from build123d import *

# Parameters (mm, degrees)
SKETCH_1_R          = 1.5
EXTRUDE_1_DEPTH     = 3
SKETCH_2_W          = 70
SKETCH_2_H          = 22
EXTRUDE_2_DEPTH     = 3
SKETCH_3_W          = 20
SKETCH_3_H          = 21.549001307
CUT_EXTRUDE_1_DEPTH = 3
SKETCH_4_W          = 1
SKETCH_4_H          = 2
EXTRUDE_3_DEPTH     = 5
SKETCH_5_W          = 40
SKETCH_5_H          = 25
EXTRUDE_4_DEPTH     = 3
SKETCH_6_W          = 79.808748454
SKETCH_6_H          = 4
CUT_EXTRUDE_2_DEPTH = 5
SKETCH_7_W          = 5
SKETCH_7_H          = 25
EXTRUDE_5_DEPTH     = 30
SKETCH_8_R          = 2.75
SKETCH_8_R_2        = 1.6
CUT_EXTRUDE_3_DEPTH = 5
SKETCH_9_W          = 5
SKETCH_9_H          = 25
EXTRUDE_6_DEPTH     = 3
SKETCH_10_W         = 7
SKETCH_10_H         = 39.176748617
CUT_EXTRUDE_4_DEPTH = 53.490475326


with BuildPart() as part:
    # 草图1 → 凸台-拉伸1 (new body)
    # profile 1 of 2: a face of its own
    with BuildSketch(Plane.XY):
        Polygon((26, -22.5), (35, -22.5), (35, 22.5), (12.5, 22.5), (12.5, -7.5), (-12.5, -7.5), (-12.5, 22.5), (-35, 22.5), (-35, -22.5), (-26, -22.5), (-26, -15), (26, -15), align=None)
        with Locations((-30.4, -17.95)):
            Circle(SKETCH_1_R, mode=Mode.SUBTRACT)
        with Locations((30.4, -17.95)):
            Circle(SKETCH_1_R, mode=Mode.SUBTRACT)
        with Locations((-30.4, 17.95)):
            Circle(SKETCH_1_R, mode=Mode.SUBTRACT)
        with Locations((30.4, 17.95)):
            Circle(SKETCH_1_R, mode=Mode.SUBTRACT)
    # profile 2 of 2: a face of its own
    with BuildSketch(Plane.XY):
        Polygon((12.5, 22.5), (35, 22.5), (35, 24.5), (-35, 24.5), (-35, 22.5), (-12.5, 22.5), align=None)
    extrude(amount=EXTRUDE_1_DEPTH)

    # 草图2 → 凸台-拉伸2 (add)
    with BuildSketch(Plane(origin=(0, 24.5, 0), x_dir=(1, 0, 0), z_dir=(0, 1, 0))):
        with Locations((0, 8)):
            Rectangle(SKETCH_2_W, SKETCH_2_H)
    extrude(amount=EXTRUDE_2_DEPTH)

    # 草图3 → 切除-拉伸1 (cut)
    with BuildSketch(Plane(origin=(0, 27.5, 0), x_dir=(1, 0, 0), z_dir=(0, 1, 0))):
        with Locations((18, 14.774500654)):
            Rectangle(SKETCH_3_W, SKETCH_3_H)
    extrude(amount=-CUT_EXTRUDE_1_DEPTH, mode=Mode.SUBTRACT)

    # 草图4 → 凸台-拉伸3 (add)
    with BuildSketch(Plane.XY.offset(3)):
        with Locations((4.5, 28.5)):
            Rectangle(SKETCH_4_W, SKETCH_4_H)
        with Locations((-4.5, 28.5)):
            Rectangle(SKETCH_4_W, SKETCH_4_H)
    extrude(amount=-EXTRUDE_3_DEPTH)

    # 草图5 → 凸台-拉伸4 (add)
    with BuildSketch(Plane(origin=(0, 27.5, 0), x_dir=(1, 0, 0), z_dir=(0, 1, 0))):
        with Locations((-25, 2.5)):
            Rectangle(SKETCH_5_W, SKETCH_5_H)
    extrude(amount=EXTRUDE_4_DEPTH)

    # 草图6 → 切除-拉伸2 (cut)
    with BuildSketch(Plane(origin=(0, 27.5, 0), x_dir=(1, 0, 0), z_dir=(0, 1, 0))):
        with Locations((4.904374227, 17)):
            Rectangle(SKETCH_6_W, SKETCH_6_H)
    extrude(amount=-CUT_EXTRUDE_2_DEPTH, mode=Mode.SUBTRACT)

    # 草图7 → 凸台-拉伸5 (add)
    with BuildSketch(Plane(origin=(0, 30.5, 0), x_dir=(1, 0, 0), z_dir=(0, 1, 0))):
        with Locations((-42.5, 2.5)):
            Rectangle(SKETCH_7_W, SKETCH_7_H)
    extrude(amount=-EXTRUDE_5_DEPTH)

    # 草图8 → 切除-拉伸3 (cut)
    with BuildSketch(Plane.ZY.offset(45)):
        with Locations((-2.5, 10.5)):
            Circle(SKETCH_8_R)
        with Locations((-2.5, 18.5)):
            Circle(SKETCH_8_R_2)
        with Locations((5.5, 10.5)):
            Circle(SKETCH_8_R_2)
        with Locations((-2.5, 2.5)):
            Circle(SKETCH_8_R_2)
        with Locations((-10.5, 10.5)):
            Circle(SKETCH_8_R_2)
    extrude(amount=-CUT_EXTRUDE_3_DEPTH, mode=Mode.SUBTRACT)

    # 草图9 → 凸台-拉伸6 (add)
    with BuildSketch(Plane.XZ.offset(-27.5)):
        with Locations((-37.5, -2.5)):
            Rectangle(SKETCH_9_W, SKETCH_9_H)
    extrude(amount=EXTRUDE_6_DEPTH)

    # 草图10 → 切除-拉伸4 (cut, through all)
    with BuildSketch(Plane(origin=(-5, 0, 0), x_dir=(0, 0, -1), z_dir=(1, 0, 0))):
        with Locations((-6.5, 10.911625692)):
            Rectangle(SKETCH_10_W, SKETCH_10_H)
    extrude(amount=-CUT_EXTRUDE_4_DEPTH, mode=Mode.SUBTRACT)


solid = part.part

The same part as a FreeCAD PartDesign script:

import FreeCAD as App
import Part
import Sketcher

V = App.Vector

doc = App.newDocument("Part")
body = doc.addObject("PartDesign::Body", "Body")

# Sketch on XY plane
sketch1 = doc.addObject("Sketcher::SketchObject", "Sketch")
body.addObject(sketch1)
sketch1.AttachmentSupport = (doc.XY_Plane, [""])
sketch1.MapMode = "FlatFace"
sketch1.addGeometry([
    Part.LineSegment(V(26, -22.5, 0), V(35, -22.5, 0)),  # 0
    Part.LineSegment(V(35, -22.5, 0), V(35, 24.5, 0)),  # 1
    Part.LineSegment(V(35, 24.5, 0), V(-35, 24.5, 0)),  # 2
    Part.LineSegment(V(-35, 24.5, 0), V(-35, -22.5, 0)),  # 3
    Part.LineSegment(V(-35, -22.5, 0), V(-26, -22.5, 0)),  # 4
    Part.LineSegment(V(-26, -22.5, 0), V(-26, -15, 0)),  # 5
    Part.LineSegment(V(-26, -15, 0), V(26, -15, 0)),  # 6
    Part.LineSegment(V(26, -15, 0), V(26, -22.5, 0)),  # 7
    Part.LineSegment(V(12.5, 22.5, 0), V(12.5, -7.5, 0)),  # 8
    Part.LineSegment(V(12.5, -7.5, 0), V(-12.5, -7.5, 0)),  # 9
    Part.LineSegment(V(-12.5, -7.5, 0), V(-12.5, 22.5, 0)),  # 10
    Part.LineSegment(V(-12.5, 22.5, 0), V(12.5, 22.5, 0)),  # 11
    Part.Circle(V(-30.4, -17.9, 0), V(0, 0, 1), 1.5),  # 12
    Part.Circle(V(30.4, -17.9, 0), V(0, 0, 1), 1.5),  # 13
    Part.Circle(V(-30.4, 17.9, 0), V(0, 0, 1), 1.5),  # 14
    Part.Circle(V(30.4, 17.9, 0), V(0, 0, 1), 1.5),  # 15
], False)
sketch1.addConstraint([
    Sketcher.Constraint("Coincident", 0, 2, 1, 1),
    Sketcher.Constraint("Coincident", 1, 2, 2, 1),
    Sketcher.Constraint("Coincident", 2, 2, 3, 1),
    Sketcher.Constraint("Coincident", 3, 2, 4, 1),
    Sketcher.Constraint("Coincident", 4, 2, 5, 1),
    Sketcher.Constraint("Coincident", 5, 2, 6, 1),
    Sketcher.Constraint("Coincident", 6, 2, 7, 1),
    Sketcher.Constraint("Coincident", 7, 2, 0, 1),
    Sketcher.Constraint("Coincident", 8, 2, 9, 1),
    Sketcher.Constraint("Coincident", 9, 2, 10, 1),
    Sketcher.Constraint("Coincident", 10, 2, 11, 1),
    Sketcher.Constraint("Coincident", 11, 2, 8, 1),
    Sketcher.Constraint("Horizontal", 0),
    Sketcher.Constraint("Vertical", 1),
    Sketcher.Constraint("Horizontal", 2),
    Sketcher.Constraint("Vertical", 3),
    Sketcher.Constraint("Horizontal", 4),
    Sketcher.Constraint("Vertical", 5),
    Sketcher.Constraint("Horizontal", 6),
    Sketcher.Constraint("Vertical", 7),
    Sketcher.Constraint("Vertical", 8),
    Sketcher.Constraint("Horizontal", 9),
    Sketcher.Constraint("Vertical", 10),
    Sketcher.Constraint("Horizontal", 11),
    Sketcher.Constraint("Equal", 12, 13),
    Sketcher.Constraint("Equal", 13, 14),
    Sketcher.Constraint("Equal", 14, 15),
    Sketcher.Constraint("Symmetric", 13, 3, 14, 3, -1, 1),
    Sketcher.Constraint("Symmetric", 12, 3, 15, 3, -1, 1),
    Sketcher.Constraint("Symmetric", 12, 3, 13, 3, -2),
    Sketcher.Constraint("Symmetric", 0, 2, 3, 2, -2),
    Sketcher.Constraint("Equal", 0, 4),
    Sketcher.Constraint("Diameter", 12, 3.0),
    Sketcher.Constraint("DistanceX", 0, 1, 0, 2, 9.0),
    Sketcher.Constraint("DistanceX", 2, 2, 2, 1, 70.0),
    Sketcher.Constraint("DistanceX", 9, 2, 9, 1, 25.0),
    Sketcher.Constraint("DistanceY", 1, 1, 1, 2, 47.0),
    Sketcher.Constraint("DistanceY", 8, 2, 8, 1, 30.0),
    Sketcher.Constraint("DistanceY", 5, 1, 5, 2, 7.5),
    Sketcher.Constraint("DistanceY", 5, 2, -1, 1, 15.0),
    Sketcher.Constraint("DistanceY", 7, 2, 8, 2, 15.0),
    Sketcher.Constraint("DistanceX", 12, 3, -1, 1, 30.4),
    Sketcher.Constraint("DistanceX", -1, 1, 8, 2, 12.5),
    Sketcher.Constraint("DistanceY", 12, 3, 14, 3, 35.9),
])
pad1 = doc.addObject("PartDesign::Pad", "Pad")
body.addObject(pad1)
pad1.Profile = sketch1
pad1.Length = 3

# Sketch on XZ plane
sketch2 = doc.addObject("Sketcher::SketchObject", "Sketch001")
body.addObject(sketch2)
sketch2.AttachmentSupport = (doc.XZ_Plane, [""])
sketch2.MapMode = "FlatFace"
sketch2.AttachmentOffset = App.Placement(V(0, 0, -24.5), App.Rotation())
sketch2.addGeometry([
    Part.LineSegment(V(-35, -19, 0), V(-35, 3, 0)),
    Part.LineSegment(V(-35, 3, 0), V(35, 3, 0)),
    Part.LineSegment(V(35, 3, 0), V(35, -19, 0)),
    Part.LineSegment(V(35, -19, 0), V(-35, -19, 0)),
], False)
sketch2.addConstraint([
    Sketcher.Constraint("Coincident", 0, 2, 1, 1),
    Sketcher.Constraint("Coincident", 1, 2, 2, 1),
    Sketcher.Constraint("Coincident", 2, 2, 3, 1),
    Sketcher.Constraint("Coincident", 3, 2, 0, 1),
    Sketcher.Constraint("Vertical", 0),
    Sketcher.Constraint("Horizontal", 1),
    Sketcher.Constraint("Vertical", 2),
    Sketcher.Constraint("Horizontal", 3),
    Sketcher.Constraint("DistanceX", 1, 1, 1, 2, 70.0),
    Sketcher.Constraint("DistanceY", 0, 1, 0, 2, 22.0),
    Sketcher.Constraint("DistanceX", 0, 2, -1, 1, 35.0),
    Sketcher.Constraint("DistanceY", -1, 1, 0, 2, 3.0),
])
pad2 = doc.addObject("PartDesign::Pad", "Pad001")
body.addObject(pad2)
pad2.Profile = sketch2
pad2.Length = 3
pad2.Reversed = True

# Sketch on XZ plane
sketch3 = doc.addObject("Sketcher::SketchObject", "Sketch002")
body.addObject(sketch3)
sketch3.AttachmentSupport = (doc.XZ_Plane, [""])
sketch3.MapMode = "FlatFace"
sketch3.AttachmentOffset = App.Placement(V(0, 0, -27.5), App.Rotation())
sketch3.addGeometry([
    Part.LineSegment(V(8, -26, 0), V(8, -4, 0)),
    Part.LineSegment(V(8, -4, 0), V(28, -4, 0)),
    Part.LineSegment(V(28, -4, 0), V(28, -26, 0)),
    Part.LineSegment(V(28, -26, 0), V(8, -26, 0)),
], False)
sketch3.addConstraint([
    Sketcher.Constraint("Coincident", 0, 2, 1, 1),
    Sketcher.Constraint("Coincident", 1, 2, 2, 1),
    Sketcher.Constraint("Coincident", 2, 2, 3, 1),
    Sketcher.Constraint("Coincident", 3, 2, 0, 1),
    Sketcher.Constraint("Vertical", 0),
    Sketcher.Constraint("Horizontal", 1),
    Sketcher.Constraint("Vertical", 2),
    Sketcher.Constraint("Horizontal", 3),
    Sketcher.Constraint("DistanceX", 1, 1, 1, 2, 20.0),
    Sketcher.Constraint("DistanceX", -1, 1, 0, 2, 8.0),
    Sketcher.Constraint("DistanceY", 0, 2, -1, 1, 4.0),
    Sketcher.Constraint("DistanceY", 0, 1, 0, 2, 21.549001),
])
pocket1 = doc.addObject("PartDesign::Pocket", "Pocket")
body.addObject(pocket1)
pocket1.Profile = sketch3
pocket1.Length = 3
pocket1.Reversed = True

# Sketch on XY plane
sketch4 = doc.addObject("Sketcher::SketchObject", "Sketch003")
body.addObject(sketch4)
sketch4.AttachmentSupport = (doc.XY_Plane, [""])
sketch4.MapMode = "FlatFace"
sketch4.AttachmentOffset = App.Placement(V(0, 0, 3), App.Rotation())
sketch4.addGeometry([
    Part.LineSegment(V(4, 29.5, 0), V(4, 27.5, 0)),  # 0
    Part.LineSegment(V(4, 27.5, 0), V(5, 27.5, 0)),  # 1
    Part.LineSegment(V(5, 27.5, 0), V(5, 29.5, 0)),  # 2
    Part.LineSegment(V(5, 29.5, 0), V(4, 29.5, 0)),  # 3
    Part.LineSegment(V(-5, 29.5, 0), V(-5, 27.5, 0)),  # 4
    Part.LineSegment(V(-5, 27.5, 0), V(-4, 27.5, 0)),  # 5
    Part.LineSegment(V(-4, 27.5, 0), V(-4, 29.5, 0)),  # 6
    Part.LineSegment(V(-4, 29.5, 0), V(-5, 29.5, 0)),  # 7
], False)
sketch4.addConstraint([
    Sketcher.Constraint("Coincident", 0, 2, 1, 1),
    Sketcher.Constraint("Coincident", 1, 2, 2, 1),
    Sketcher.Constraint("Coincident", 2, 2, 3, 1),
    Sketcher.Constraint("Coincident", 3, 2, 0, 1),
    Sketcher.Constraint("Coincident", 4, 2, 5, 1),
    Sketcher.Constraint("Coincident", 5, 2, 6, 1),
    Sketcher.Constraint("Coincident", 6, 2, 7, 1),
    Sketcher.Constraint("Coincident", 7, 2, 4, 1),
    Sketcher.Constraint("Vertical", 0),
    Sketcher.Constraint("Horizontal", 1),
    Sketcher.Constraint("Vertical", 2),
    Sketcher.Constraint("Horizontal", 3),
    Sketcher.Constraint("Vertical", 4),
    Sketcher.Constraint("Horizontal", 5),
    Sketcher.Constraint("Vertical", 6),
    Sketcher.Constraint("Horizontal", 7),
    Sketcher.Constraint("Symmetric", 1, 2, 4, 2, -2),
    Sketcher.Constraint("Symmetric", 3, 2, 6, 2, -2),
    Sketcher.Constraint("DistanceX", 1, 1, 1, 2, 1.0),
    Sketcher.Constraint("DistanceY", 0, 2, 0, 1, 2.0),
    Sketcher.Constraint("DistanceX", -1, 1, 0, 2, 4.0),
    Sketcher.Constraint("DistanceY", -1, 1, 0, 2, 27.5),
])
pad3 = doc.addObject("PartDesign::Pad", "Pad002")
body.addObject(pad3)
pad3.Profile = sketch4
pad3.Length = 5
pad3.Reversed = True

# Sketch on XZ plane
sketch5 = doc.addObject("Sketcher::SketchObject", "Sketch004")
body.addObject(sketch5)
sketch5.AttachmentSupport = (doc.XZ_Plane, [""])
sketch5.MapMode = "FlatFace"
sketch5.AttachmentOffset = App.Placement(V(0, 0, -27.5), App.Rotation())
sketch5.addGeometry([
    Part.LineSegment(V(-45, -15, 0), V(-45, 10, 0)),
    Part.LineSegment(V(-45, 10, 0), V(-5, 10, 0)),
    Part.LineSegment(V(-5, 10, 0), V(-5, -15, 0)),
    Part.LineSegment(V(-5, -15, 0), V(-45, -15, 0)),
], False)
sketch5.addConstraint([
    Sketcher.Constraint("Coincident", 0, 2, 1, 1),
    Sketcher.Constraint("Coincident", 1, 2, 2, 1),
    Sketcher.Constraint("Coincident", 2, 2, 3, 1),
    Sketcher.Constraint("Coincident", 3, 2, 0, 1),
    Sketcher.Constraint("Vertical", 0),
    Sketcher.Constraint("Horizontal", 1),
    Sketcher.Constraint("Vertical", 2),
    Sketcher.Constraint("Horizontal", 3),
    Sketcher.Constraint("DistanceX", 1, 1, 1, 2, 40.0),
    Sketcher.Constraint("DistanceY", 0, 1, 0, 2, 25.0),
    Sketcher.Constraint("DistanceX", 0, 2, -1, 1, 45.0),
    Sketcher.Constraint("DistanceY", -1, 1, 0, 2, 10.0),
])
pad4 = doc.addObject("PartDesign::Pad", "Pad003")
body.addObject(pad4)
pad4.Profile = sketch5
pad4.Length = 3
pad4.Reversed = True

# Sketch on XZ plane
sketch6 = doc.addObject("Sketcher::SketchObject", "Sketch005")
body.addObject(sketch6)
sketch6.AttachmentSupport = (doc.XZ_Plane, [""])
sketch6.MapMode = "FlatFace"
sketch6.AttachmentOffset = App.Placement(V(0, 0, -27.5), App.Rotation())
sketch6.addGeometry([
    Part.LineSegment(V(-35, -19, 0), V(-35, -15, 0)),
    Part.LineSegment(V(-35, -15, 0), V(44.8, -15, 0)),
    Part.LineSegment(V(44.8, -15, 0), V(44.8, -19, 0)),
    Part.LineSegment(V(44.8, -19, 0), V(-35, -19, 0)),
], False)
sketch6.addConstraint([
    Sketcher.Constraint("Coincident", 0, 2, 1, 1),
    Sketcher.Constraint("Coincident", 1, 2, 2, 1),
    Sketcher.Constraint("Coincident", 2, 2, 3, 1),
    Sketcher.Constraint("Coincident", 3, 2, 0, 1),
    Sketcher.Constraint("Vertical", 0),
    Sketcher.Constraint("Horizontal", 1),
    Sketcher.Constraint("Vertical", 2),
    Sketcher.Constraint("Horizontal", 3),
    Sketcher.Constraint("DistanceY", 0, 1, 0, 2, 4.0),
    Sketcher.Constraint("DistanceX", 0, 2, -1, 1, 35.0),
    Sketcher.Constraint("DistanceY", 0, 2, -1, 1, 15.0),
    Sketcher.Constraint("DistanceX", 1, 1, 1, 2, 79.808748),
])
pocket2 = doc.addObject("PartDesign::Pocket", "Pocket001")
body.addObject(pocket2)
pocket2.Profile = sketch6
pocket2.Length = 5
pocket2.Reversed = True

# Sketch on XZ plane
sketch7 = doc.addObject("Sketcher::SketchObject", "Sketch006")
body.addObject(sketch7)
sketch7.AttachmentSupport = (doc.XZ_Plane, [""])
sketch7.MapMode = "FlatFace"
sketch7.AttachmentOffset = App.Placement(V(0, 0, -30.5), App.Rotation())
sketch7.addGeometry([
    Part.LineSegment(V(-45, -15, 0), V(-45, 10, 0)),
    Part.LineSegment(V(-45, 10, 0), V(-40, 10, 0)),
    Part.LineSegment(V(-40, 10, 0), V(-40, -15, 0)),
    Part.LineSegment(V(-40, -15, 0), V(-45, -15, 0)),
], False)
sketch7.addConstraint([
    Sketcher.Constraint("Coincident", 0, 2, 1, 1),
    Sketcher.Constraint("Coincident", 1, 2, 2, 1),
    Sketcher.Constraint("Coincident", 2, 2, 3, 1),
    Sketcher.Constraint("Coincident", 3, 2, 0, 1),
    Sketcher.Constraint("Vertical", 0),
    Sketcher.Constraint("Horizontal", 1),
    Sketcher.Constraint("Vertical", 2),
    Sketcher.Constraint("Horizontal", 3),
    Sketcher.Constraint("DistanceX", 1, 1, 1, 2, 5.0),
    Sketcher.Constraint("DistanceY", 0, 1, 0, 2, 25.0),
    Sketcher.Constraint("DistanceX", 0, 2, -1, 1, 45.0),
    Sketcher.Constraint("DistanceY", -1, 1, 0, 2, 10.0),
])
pad5 = doc.addObject("PartDesign::Pad", "Pad004")
body.addObject(pad5)
pad5.Profile = sketch7
pad5.Length = 30

# Sketch on YZ plane
sketch8 = doc.addObject("Sketcher::SketchObject", "Sketch007")
body.addObject(sketch8)
sketch8.AttachmentSupport = (doc.YZ_Plane, [""])
sketch8.MapMode = "FlatFace"
sketch8.AttachmentOffset = App.Placement(V(0, 0, -45), App.Rotation())
sketch8.addGeometry([
    Part.Circle(V(10.5, -2.5, 0), V(0, 0, 1), 2.8),  # 0
    Part.Circle(V(18.5, -2.5, 0), V(0, 0, 1), 1.6),  # 1
    Part.Circle(V(10.5, 5.5, 0), V(0, 0, 1), 1.6),  # 2
    Part.Circle(V(2.5, -2.5, 0), V(0, 0, 1), 1.6),  # 3
    Part.Circle(V(10.5, -10.5, 0), V(0, 0, 1), 1.6),  # 4
], False)
sketch8.addConstraint([
    Sketcher.Constraint("Equal", 1, 2),
    Sketcher.Constraint("Equal", 2, 3),
    Sketcher.Constraint("Equal", 3, 4),
    Sketcher.Constraint("Horizontal", 0, 3, 1, 3),
    Sketcher.Constraint("Horizontal", 1, 3, 3, 3),
    Sketcher.Constraint("Vertical", 0, 3, 2, 3),
    Sketcher.Constraint("Vertical", 2, 3, 4, 3),
    Sketcher.Constraint("Diameter", 0, 5.5),
    Sketcher.Constraint("Diameter", 1, 3.2),
    Sketcher.Constraint("DistanceX", 0, 3, 1, 3, 8.0),
    Sketcher.Constraint("DistanceY", 0, 3, 2, 3, 8.0),
    Sketcher.Constraint("DistanceX", 3, 3, 0, 3, 8.0),
    Sketcher.Constraint("DistanceY", 4, 3, 0, 3, 8.0),
    Sketcher.Constraint("DistanceX", -1, 1, 0, 3, 10.5),
    Sketcher.Constraint("DistanceY", 0, 3, -1, 1, 2.5),
])
pocket3 = doc.addObject("PartDesign::Pocket", "Pocket002")
body.addObject(pocket3)
pocket3.Profile = sketch8
pocket3.Length = 5
pocket3.Reversed = True

# Sketch on XZ plane
sketch9 = doc.addObject("Sketcher::SketchObject", "Sketch008")
body.addObject(sketch9)
sketch9.AttachmentSupport = (doc.XZ_Plane, [""])
sketch9.MapMode = "FlatFace"
sketch9.AttachmentOffset = App.Placement(V(0, 0, -27.5), App.Rotation())
sketch9.addGeometry([
    Part.LineSegment(V(-40, 10, 0), V(-40, -15, 0)),
    Part.LineSegment(V(-40, -15, 0), V(-35, -15, 0)),
    Part.LineSegment(V(-35, -15, 0), V(-35, 10, 0)),
    Part.LineSegment(V(-35, 10, 0), V(-40, 10, 0)),
], False)
sketch9.addConstraint([
    Sketcher.Constraint("Coincident", 0, 2, 1, 1),
    Sketcher.Constraint("Coincident", 1, 2, 2, 1),
    Sketcher.Constraint("Coincident", 2, 2, 3, 1),
    Sketcher.Constraint("Coincident", 3, 2, 0, 1),
    Sketcher.Constraint("Vertical", 0),
    Sketcher.Constraint("Horizontal", 1),
    Sketcher.Constraint("Vertical", 2),
    Sketcher.Constraint("Horizontal", 3),
    Sketcher.Constraint("DistanceX", 1, 1, 1, 2, 5.0),
    Sketcher.Constraint("DistanceY", 0, 2, 0, 1, 25.0),
    Sketcher.Constraint("DistanceX", 0, 2, -1, 1, 40.0),
    Sketcher.Constraint("DistanceY", 0, 2, -1, 1, 15.0),
])
pad6 = doc.addObject("PartDesign::Pad", "Pad005")
body.addObject(pad6)
pad6.Profile = sketch9
pad6.Length = 3

# Sketch on YZ plane
sketch10 = doc.addObject("Sketcher::SketchObject", "Sketch009")
body.addObject(sketch10)
sketch10.AttachmentSupport = (doc.YZ_Plane, [""])
sketch10.MapMode = "FlatFace"
sketch10.AttachmentOffset = App.Placement(V(0, 0, -5), App.Rotation())
sketch10.addGeometry([
    Part.LineSegment(V(31, 10, 0), V(-9, 10, 0)),
    Part.LineSegment(V(-9, 10, 0), V(-9, 3, 0)),
    Part.LineSegment(V(-9, 3, 0), V(31, 3, 0)),
    Part.LineSegment(V(31, 3, 0), V(31, 10, 0)),
], False)
sketch10.addConstraint([
    Sketcher.Constraint("Coincident", 0, 2, 1, 1),
    Sketcher.Constraint("Coincident", 1, 2, 2, 1),
    Sketcher.Constraint("Coincident", 2, 2, 3, 1),
    Sketcher.Constraint("Coincident", 3, 2, 0, 1),
    Sketcher.Constraint("Horizontal", 0),
    Sketcher.Constraint("Vertical", 1),
    Sketcher.Constraint("Horizontal", 2),
    Sketcher.Constraint("Vertical", 3),
    Sketcher.Constraint("DistanceY", 1, 2, 1, 1, 7.0),
    Sketcher.Constraint("DistanceY", -1, 1, 0, 2, 10.0),
    Sketcher.Constraint("DistanceX", -1, 1, 2, 2, 30.5),
    Sketcher.Constraint("DistanceX", 0, 2, 0, 1, 39.176749),
])
pocket4 = doc.addObject("PartDesign::Pocket", "Pocket003")
body.addObject(pocket4)
pocket4.Profile = sketch10
pocket4.Type = "ThroughAll"

doc.recompute()
